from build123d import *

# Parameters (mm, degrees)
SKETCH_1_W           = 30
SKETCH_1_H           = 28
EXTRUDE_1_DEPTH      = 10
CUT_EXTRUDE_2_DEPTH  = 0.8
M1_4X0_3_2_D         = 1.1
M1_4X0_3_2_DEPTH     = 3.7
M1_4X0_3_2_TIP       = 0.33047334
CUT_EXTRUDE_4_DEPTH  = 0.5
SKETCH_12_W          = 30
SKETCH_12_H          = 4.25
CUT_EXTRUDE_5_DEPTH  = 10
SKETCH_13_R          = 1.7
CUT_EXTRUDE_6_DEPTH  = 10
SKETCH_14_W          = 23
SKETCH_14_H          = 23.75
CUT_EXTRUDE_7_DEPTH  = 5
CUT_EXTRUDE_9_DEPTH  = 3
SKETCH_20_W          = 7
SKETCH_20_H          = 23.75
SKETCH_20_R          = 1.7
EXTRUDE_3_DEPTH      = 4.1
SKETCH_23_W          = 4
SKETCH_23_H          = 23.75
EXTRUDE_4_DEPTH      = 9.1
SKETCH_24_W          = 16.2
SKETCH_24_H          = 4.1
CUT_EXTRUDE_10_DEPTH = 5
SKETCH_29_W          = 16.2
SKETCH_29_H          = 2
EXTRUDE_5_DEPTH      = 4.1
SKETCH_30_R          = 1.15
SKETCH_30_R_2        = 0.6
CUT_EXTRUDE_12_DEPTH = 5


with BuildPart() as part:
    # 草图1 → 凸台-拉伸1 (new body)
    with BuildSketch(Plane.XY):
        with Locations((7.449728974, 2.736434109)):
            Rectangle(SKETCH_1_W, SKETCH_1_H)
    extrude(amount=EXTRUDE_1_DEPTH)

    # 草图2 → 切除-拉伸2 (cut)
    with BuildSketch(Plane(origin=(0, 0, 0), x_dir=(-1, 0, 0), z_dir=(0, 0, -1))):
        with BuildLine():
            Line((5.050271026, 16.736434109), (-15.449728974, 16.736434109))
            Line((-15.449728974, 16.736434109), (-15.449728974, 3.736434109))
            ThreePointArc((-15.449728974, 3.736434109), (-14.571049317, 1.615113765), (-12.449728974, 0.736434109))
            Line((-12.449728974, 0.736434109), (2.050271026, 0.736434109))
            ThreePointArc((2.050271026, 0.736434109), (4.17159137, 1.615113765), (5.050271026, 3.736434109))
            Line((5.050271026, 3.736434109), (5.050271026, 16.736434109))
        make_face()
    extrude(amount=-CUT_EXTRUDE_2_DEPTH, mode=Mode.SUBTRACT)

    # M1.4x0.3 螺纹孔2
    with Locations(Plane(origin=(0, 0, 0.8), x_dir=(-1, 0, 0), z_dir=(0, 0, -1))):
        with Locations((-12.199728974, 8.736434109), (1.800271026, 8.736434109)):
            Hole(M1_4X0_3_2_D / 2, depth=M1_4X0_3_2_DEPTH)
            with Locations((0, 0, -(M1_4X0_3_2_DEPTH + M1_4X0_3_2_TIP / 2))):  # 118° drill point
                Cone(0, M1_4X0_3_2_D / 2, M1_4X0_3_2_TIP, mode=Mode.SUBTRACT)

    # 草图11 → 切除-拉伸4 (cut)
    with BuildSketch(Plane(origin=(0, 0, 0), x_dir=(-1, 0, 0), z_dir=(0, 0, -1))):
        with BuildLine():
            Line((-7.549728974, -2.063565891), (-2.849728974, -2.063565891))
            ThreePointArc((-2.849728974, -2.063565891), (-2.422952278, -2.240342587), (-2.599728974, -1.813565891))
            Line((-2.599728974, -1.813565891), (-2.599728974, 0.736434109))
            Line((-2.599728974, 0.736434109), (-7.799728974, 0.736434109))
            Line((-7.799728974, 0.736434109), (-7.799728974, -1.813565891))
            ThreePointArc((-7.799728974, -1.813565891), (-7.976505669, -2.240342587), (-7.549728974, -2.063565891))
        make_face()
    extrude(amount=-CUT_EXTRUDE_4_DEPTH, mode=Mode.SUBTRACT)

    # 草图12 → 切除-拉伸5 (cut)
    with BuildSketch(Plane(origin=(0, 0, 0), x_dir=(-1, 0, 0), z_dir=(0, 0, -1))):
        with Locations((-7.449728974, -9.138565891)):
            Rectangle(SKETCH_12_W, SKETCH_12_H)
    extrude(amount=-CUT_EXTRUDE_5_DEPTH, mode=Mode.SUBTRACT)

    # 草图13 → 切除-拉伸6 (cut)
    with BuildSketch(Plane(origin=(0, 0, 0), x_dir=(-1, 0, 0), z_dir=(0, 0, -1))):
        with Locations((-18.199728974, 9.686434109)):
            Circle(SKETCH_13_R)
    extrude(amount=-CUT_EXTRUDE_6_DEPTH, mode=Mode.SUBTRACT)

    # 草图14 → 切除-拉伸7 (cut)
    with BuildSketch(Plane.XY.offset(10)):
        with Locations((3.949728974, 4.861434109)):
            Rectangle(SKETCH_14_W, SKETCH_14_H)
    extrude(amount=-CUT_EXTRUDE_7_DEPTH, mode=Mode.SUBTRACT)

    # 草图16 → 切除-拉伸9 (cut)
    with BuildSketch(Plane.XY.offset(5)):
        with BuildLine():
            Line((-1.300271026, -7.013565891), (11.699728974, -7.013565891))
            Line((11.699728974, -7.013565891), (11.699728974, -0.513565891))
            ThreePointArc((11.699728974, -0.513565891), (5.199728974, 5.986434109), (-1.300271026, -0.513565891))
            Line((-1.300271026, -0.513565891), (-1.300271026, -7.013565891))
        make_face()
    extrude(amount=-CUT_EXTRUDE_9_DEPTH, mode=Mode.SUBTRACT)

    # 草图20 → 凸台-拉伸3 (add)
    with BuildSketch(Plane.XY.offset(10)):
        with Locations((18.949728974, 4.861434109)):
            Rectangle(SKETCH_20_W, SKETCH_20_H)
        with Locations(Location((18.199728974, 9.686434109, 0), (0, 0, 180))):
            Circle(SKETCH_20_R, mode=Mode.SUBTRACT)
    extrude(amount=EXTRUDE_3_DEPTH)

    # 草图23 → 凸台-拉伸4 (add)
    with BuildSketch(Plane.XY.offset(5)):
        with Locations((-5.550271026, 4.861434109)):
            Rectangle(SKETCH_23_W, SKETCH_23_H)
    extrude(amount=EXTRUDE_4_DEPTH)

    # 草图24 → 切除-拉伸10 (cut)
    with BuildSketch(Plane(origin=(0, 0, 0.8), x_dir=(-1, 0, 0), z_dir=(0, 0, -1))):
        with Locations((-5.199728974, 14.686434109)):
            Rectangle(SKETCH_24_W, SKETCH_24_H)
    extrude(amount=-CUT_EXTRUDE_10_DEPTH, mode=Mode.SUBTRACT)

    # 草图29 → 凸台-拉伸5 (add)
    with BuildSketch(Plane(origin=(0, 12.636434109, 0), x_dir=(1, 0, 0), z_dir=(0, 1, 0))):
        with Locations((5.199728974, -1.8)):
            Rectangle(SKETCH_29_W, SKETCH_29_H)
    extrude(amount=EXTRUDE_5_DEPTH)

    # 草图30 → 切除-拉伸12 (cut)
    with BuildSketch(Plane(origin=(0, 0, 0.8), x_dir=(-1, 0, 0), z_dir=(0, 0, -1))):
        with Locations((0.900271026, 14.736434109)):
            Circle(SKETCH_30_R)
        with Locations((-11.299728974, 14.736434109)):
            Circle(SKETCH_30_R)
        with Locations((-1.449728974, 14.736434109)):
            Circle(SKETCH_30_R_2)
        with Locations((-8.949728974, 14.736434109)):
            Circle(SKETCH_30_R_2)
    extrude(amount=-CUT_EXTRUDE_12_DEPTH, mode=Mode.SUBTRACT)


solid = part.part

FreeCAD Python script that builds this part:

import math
import FreeCAD as App
import Part
import Sketcher
from FreeCAD import Vector
Q = App.Units.Quantity


def add_polygon(sketch, points):
    """Adds a closed chain of lines whose ends are joined by coincident constraints."""
    first, n = sketch.GeometryCount, len(points)
    for a, b in zip(points, points[1:] + points[:1]):
        sketch.addGeometry(Part.LineSegment(App.Vector(*a, 0), App.Vector(*b, 0)), False)
    for i in range(n):
        sketch.addConstraint(Sketcher.Constraint("Coincident", first + i, 2, first + (i + 1) % n, 1))

doc = App.newDocument("Part")
body = doc.addObject("PartDesign::Body", "Body")

# Sketch on XY plane
sketch1 = body.newObject("Sketcher::SketchObject", "Sketch")
sketch1.AttachmentSupport = (doc.getObject("XY_Plane"), [""])
sketch1.MapMode = "FlatFace"
add_polygon(sketch1, [(-7.550271, 16.736434), (-7.550271, -11.263566), (22.449729, -11.263566), (22.449729, 16.736434)])  # lines 0-3
sketch1.addConstraint(Sketcher.Constraint("Vertical", 0))
sketch1.addConstraint(Sketcher.Constraint("Horizontal", 1))
sketch1.addConstraint(Sketcher.Constraint("Vertical", 2))
sketch1.addConstraint(Sketcher.Constraint("Horizontal", 3))
sketch1.addConstraint(Sketcher.Constraint("DistanceX", 1, 1, 1, 2, Q("30 mm")))
sketch1.addConstraint(Sketcher.Constraint("DistanceY", 0, 2, 0, 1, Q("28 mm")))
sketch1.addConstraint(Sketcher.Constraint("DistanceX", 0, 2, -1, 1, Q("7.550271 mm")))
sketch1.addConstraint(Sketcher.Constraint("DistanceY", 0, 2, -1, 1, Q("11.263566 mm")))
pad1 = body.newObject("PartDesign::Pad", "Pad")
pad1.Profile = sketch1
pad1.Length = 10

# Sketch on XY plane
sketch2 = body.newObject("Sketcher::SketchObject", "Sketch001")
sketch2.AttachmentSupport = (doc.getObject("XY_Plane"), [""])
sketch2.MapMode = "FlatFace"
sketch2.addGeometry(Part.LineSegment(Vector(-5.050271, 16.736434, 0), Vector(15.449729, 16.736434, 0)), False)
sketch2.addGeometry(Part.LineSegment(Vector(15.449729, 16.736434, 0), Vector(15.449729, 3.736434, 0)), False)
sketch2.addGeometry(Part.ArcOfCircle(Part.Circle(Vector(12.449729, 3.736434, 0), Vector(0, 0, 1), 3), math.radians(-90), math.radians(0)), False)
sketch2.addGeometry(Part.LineSegment(Vector(12.449729, 0.736434, 0), Vector(-2.050271, 0.736434, 0)), False)
sketch2.addGeometry(Part.ArcOfCircle(Part.Circle(Vector(-2.050271, 3.736434, 0), Vector(0, 0, 1), 3), math.radians(180), math.radians(270)), False)
sketch2.addGeometry(Part.LineSegment(Vector(-5.050271, 3.736434, 0), Vector(-5.050271, 16.736434, 0)), False)
sketch2.addConstraint(Sketcher.Constraint("Coincident", 0, 2, 1, 1))
sketch2.addConstraint(Sketcher.Constraint("Tangent", 1, 2, 2, 2))
sketch2.addConstraint(Sketcher.Constraint("Tangent", 2, 1, 3, 1))
sketch2.addConstraint(Sketcher.Constraint("Tangent", 3, 2, 4, 2))
sketch2.addConstraint(Sketcher.Constraint("Tangent", 4, 1, 5, 1))
sketch2.addConstraint(Sketcher.Constraint("Coincident", 5, 2, 0, 1))
sketch2.addConstraint(Sketcher.Constraint("Horizontal", 0))
sketch2.addConstraint(Sketcher.Constraint("Vertical", 1))
sketch2.addConstraint(Sketcher.Constraint("Horizontal", 3))
sketch2.addConstraint(Sketcher.Constraint("Vertical", 5))
sketch2.addConstraint(Sketcher.Constraint("Equal", 2, 4))
sketch2.addConstraint(Sketcher.Constraint("Radius", 2, Q("3 mm")))
sketch2.addConstraint(Sketcher.Constraint("DistanceY", 1, 2, 1, 1, Q("13 mm")))
sketch2.addConstraint(Sketcher.Constraint("DistanceX", 0, 1, 0, 2, Q("20.5 mm")))
sketch2.addConstraint(Sketcher.Constraint("DistanceX", -1, 1, 2, 3, Q("12.449729 mm")))
sketch2.addConstraint(Sketcher.Constraint("DistanceY", -1, 1, 2, 3, Q("3.736434 mm")))
pocket1 = body.newObject("PartDesign::Pocket", "Pocket")
pocket1.Profile = sketch2
pocket1.Length = 0.8
pocket1.Reversed = True

# Sketch on XY plane
sketch3 = body.newObject("Sketcher::SketchObject", "Sketch002")
sketch3.AttachmentSupport = (doc.getObject("XY_Plane"), [""])
sketch3.MapMode = "FlatFace"
sketch3.AttachmentOffset = App.Placement(Vector(0, 0, 0.8), App.Rotation())
sketch3.addGeometry(Part.Circle(Vector(12.199729, 8.736434, 0), Vector(0, 0, 1), 0.55), False)
sketch3.addGeometry(Part.Circle(Vector(-1.800271, 8.736434, 0), Vector(0, 0, 1), 0.55), False)
sketch3.addConstraint(Sketcher.Constraint("Equal", 0, 1))
sketch3.addConstraint(Sketcher.Constraint("Horizontal", 0, 3, 1, 3))
sketch3.addConstraint(Sketcher.Constraint("Diameter", 0, Q("1.1 mm")))
sketch3.addConstraint(Sketcher.Constraint("DistanceX", 1, 3, 0, 3, Q("14 mm")))
sketch3.addConstraint(Sketcher.Constraint("DistanceX", -1, 1, 0, 3, Q("12.199729 mm")))
sketch3.addConstraint(Sketcher.Constraint("DistanceY", -1, 1, 0, 3, Q("8.736434 mm")))
doc.recompute()
hole = body.newObject("PartDesign::Hole", "Hole")
hole.Profile = sketch3
hole.ThreadType = "None"
hole.Diameter = 1.1
hole.DepthType = "Dimension"
hole.Depth = 3.7
hole.DrillPoint = "Angled"
hole.DrillPointAngle = 118
hole.Reversed = True

# Sketch on XY plane
sketch4 = body.newObject("Sketcher::SketchObject", "Sketch003")
sketch4.AttachmentSupport = (doc.getObject("XY_Plane"), [""])
sketch4.MapMode = "FlatFace"
sketch4.addGeometry(Part.LineSegment(Vector(7.549729, -2.063566, 0), Vector(2.849729, -2.063566, 0)), False)
sketch4.addGeometry(Part.ArcOfCircle(Part.Circle(Vector(2.599729, -2.063566, 0), Vector(0, 0, 1), 0.25), math.radians(90), math.radians(360)), False)
sketch4.addGeometry(Part.LineSegment(Vector(2.599729, -1.813566, 0), Vector(2.599729, 0.736434, 0)), False)
sketch4.addGeometry(Part.LineSegment(Vector(2.599729, 0.736434, 0), Vector(7.799729, 0.736434, 0)), False)
sketch4.addGeometry(Part.LineSegment(Vector(7.799729, 0.736434, 0), Vector(7.799729, -1.813566, 0)), False)
sketch4.addGeometry(Part.ArcOfCircle(Part.Circle(Vector(7.799729, -2.063566, 0), Vector(0, 0, 1), 0.25), math.radians(180), math.radians(450)), False)
sketch4.addConstraint(Sketcher.Constraint("Coincident", 0, 2, 1, 2))
sketch4.addConstraint(Sketcher.Constraint("Coincident", 1, 1, 2, 1))
sketch4.addConstraint(Sketcher.Constraint("Coincident", 2, 2, 3, 1))
sketch4.addConstraint(Sketcher.Constraint("Coincident", 3, 2, 4, 1))
sketch4.addConstraint(Sketcher.Constraint("Coincident", 4, 2, 5, 2))
sketch4.addConstraint(Sketcher.Constraint("Coincident", 5, 1, 0, 1))
sketch4.addConstraint(Sketcher.Constraint("Horizontal", 0))
sketch4.addConstraint(Sketcher.Constraint("Vertical", 2))
sketch4.addConstraint(Sketcher.Constraint("Horizontal", 3))
sketch4.addConstraint(Sketcher.Constraint("Vertical", 4))
sketch4.addConstraint(Sketcher.Constraint("Equal", 1, 5))
sketch4.addConstraint(Sketcher.Constraint("Horizontal", 1, 3, 5, 3))
sketch4.addConstraint(Sketcher.Constraint("Horizontal", 5, 3, 0, 2))
sketch4.addConstraint(Sketcher.Constraint("Vertical", 5, 3, 3, 2))
sketch4.addConstraint(Sketcher.Constraint("Radius", 1, Q("0.25 mm")))
sketch4.addConstraint(Sketcher.Constraint("DistanceX", 0, 2, 0, 1, Q("4.7 mm")))
sketch4.addConstraint(Sketcher.Constraint("DistanceX", 3, 1, 3, 2, Q("5.2 mm")))
sketch4.addConstraint(Sketcher.Constraint("DistanceY", 2, 1, 2, 2, Q("2.55 mm")))
sketch4.addConstraint(Sketcher.Constraint("DistanceX", -1, 1, 1, 3, Q("2.599729 mm")))
sketch4.addConstraint(Sketcher.Constraint("DistanceY", 1, 3, -1, 1, Q("2.063566 mm")))
pocket2 = body.newObject("PartDesign::Pocket", "Pocket001")
pocket2.Profile = sketch4
pocket2.Length = 0.5
pocket2.Reversed = True

# Sketch on XY plane
sketch5 = body.newObject("Sketcher::SketchObject", "Sketch004")
sketch5.AttachmentSupport = (doc.getObject("XY_Plane"), [""])
sketch5.MapMode = "FlatFace"
add_polygon(sketch5, [(22.449729, -7.013566), (22.449729, -11.263566), (-7.550271, -11.263566), (-7.550271, -7.013566)])  # lines 0-3
sketch5.addConstraint(Sketcher.Constraint("Vertical", 0))
sketch5.addConstraint(Sketcher.Constraint("Horizontal", 1))
sketch5.addConstraint(Sketcher.Constraint("Vertical", 2))
sketch5.addConstraint(Sketcher.Constraint("Horizontal", 3))
sketch5.addConstraint(Sketcher.Constraint("DistanceX", 1, 2, 1, 1, Q("30 mm")))
sketch5.addConstraint(Sketcher.Constraint("DistanceY", 0, 2, 0, 1, Q("4.25 mm")))
sketch5.addConstraint(Sketcher.Constraint("DistanceX", -1, 1, 0, 2, Q("22.449729 mm")))
sketch5.addConstraint(Sketcher.Constraint("DistanceY", 0, 2, -1, 1, Q("11.263566 mm")))
pocket3 = body.newObject("PartDesign::Pocket", "Pocket002")
pocket3.Profile = sketch5
pocket3.Length = 10
pocket3.Reversed = True

# Sketch on XY plane
sketch6 = body.newObject("Sketcher::SketchObject", "Sketch005")
sketch6.AttachmentSupport = (doc.getObject("XY_Plane"), [""])
sketch6.MapMode = "FlatFace"
sketch6.addGeometry(Part.Circle(Vector(18.199729, 9.686434, 0), Vector(0, 0, 1), 1.7), False)
sketch6.addConstraint(Sketcher.Constraint("Diameter", 0, Q("3.4 mm")))
sketch6.addConstraint(Sketcher.Constraint("DistanceX", -1, 1, 0, 3, Q("18.199729 mm")))
sketch6.addConstraint(Sketcher.Constraint("DistanceY", -1, 1, 0, 3, Q("9.686434 mm")))
pocket4 = body.newObject("PartDesign::Pocket", "Pocket003")
pocket4.Profile = sketch6
pocket4.Length = 10
pocket4.Reversed = True

# Sketch on XY plane
sketch7 = body.newObject("Sketcher::SketchObject", "Sketch006")
sketch7.AttachmentSupport = (doc.getObject("XY_Plane"), [""])
sketch7.MapMode = "FlatFace"
sketch7.AttachmentOffset = App.Placement(Vector(0, 0, 10), App.Rotation())
add_polygon(sketch7, [(-7.550271, 16.736434), (-7.550271, -7.013566), (15.449729, -7.013566), (15.449729, 16.736434)])  # lines 0-3
sketch7.addConstraint(Sketcher.Constraint("Vertical", 0))
sketch7.addConstraint(Sketcher.Constraint("Horizontal", 1))
sketch7.addConstraint(Sketcher.Constraint("Vertical", 2))
sketch7.addConstraint(Sketcher.Constraint("Horizontal", 3))
sketch7.addConstraint(Sketcher.Constraint("DistanceX", 1, 1, 1, 2, Q("23 mm")))
sketch7.addConstraint(Sketcher.Constraint("DistanceY", 0, 2, 0, 1, Q("23.75 mm")))
sketch7.addConstraint(Sketcher.Constraint("DistanceX", 0, 2, -1, 1, Q("7.550271 mm")))
sketch7.addConstraint(Sketcher.Constraint("DistanceY", 0, 2, -1, 1, Q("7.013566 mm")))
pocket5 = body.newObject("PartDesign::Pocket", "Pocket004")
pocket5.Profile = sketch7
pocket5.Length = 5

# Sketch on XY plane
sketch8 = body.newObject("Sketcher::SketchObject", "Sketch007")
sketch8.AttachmentSupport = (doc.getObject("XY_Plane"), [""])
sketch8.MapMode = "FlatFace"
sketch8.AttachmentOffset = App.Placement(Vector(0, 0, 5), App.Rotation())
sketch8.addGeometry(Part.LineSegment(Vector(-1.300271, -7.013566, 0), Vector(11.699729, -7.013566, 0)), False)
sketch8.addGeometry(Part.LineSegment(Vector(11.699729, -7.013566, 0), Vector(11.699729, -0.513566, 0)), False)
sketch8.addGeometry(Part.ArcOfCircle(Part.Circle(Vector(5.199729, -0.513566, 0), Vector(0, 0, 1), 6.5), math.radians(0), math.radians(180)), False)
sketch8.addGeometry(Part.LineSegment(Vector(-1.300271, -0.513566, 0), Vector(-1.300271, -7.013566, 0)), False)
sketch8.addConstraint(Sketcher.Constraint("Coincident", 0, 2, 1, 1))
sketch8.addConstraint(Sketcher.Constraint("Tangent", 1, 2, 2, 1))
sketch8.addConstraint(Sketcher.Constraint("Tangent", 2, 2, 3, 1))
sketch8.addConstraint(Sketcher.Constraint("Coincident", 3, 2, 0, 1))
sketch8.addConstraint(Sketcher.Constraint("Horizontal", 0))
sketch8.addConstraint(Sketcher.Constraint("Vertical", 1))
sketch8.addConstraint(Sketcher.Constraint("Vertical", 3))
sketch8.addConstraint(Sketcher.Constraint("Radius", 2, Q("6.5 mm")))
sketch8.addConstraint(Sketcher.Constraint("DistanceY", 1, 1, 1, 2, Q("6.5 mm")))
sketch8.addConstraint(Sketcher.Constraint("DistanceX", -1, 1, 2, 3, Q("5.199729 mm")))
sketch8.addConstraint(Sketcher.Constraint("DistanceY", 2, 3, -1, 1, Q("0.513566 mm")))
pocket6 = body.newObject("PartDesign::Pocket", "Pocket005")
pocket6.Profile = sketch8
pocket6.Length = 3

# Sketch on XY plane
sketch9 = body.newObject("Sketcher::SketchObject", "Sketch008")
sketch9.AttachmentSupport = (doc.getObject("XY_Plane"), [""])
sketch9.MapMode = "FlatFace"
sketch9.AttachmentOffset = App.Placement(Vector(0, 0, 10), App.Rotation())
add_polygon(sketch9, [(15.449729, 16.736434), (15.449729, -7.013566), (22.449729, -7.013566), (22.449729, 16.736434)])  # lines 0-3
sketch9.addGeometry(Part.Circle(Vector(18.199729, 9.686434, 0), Vector(0, 0, 1), 1.7), False)  # 4
sketch9.addConstraint(Sketcher.Constraint("Vertical", 0))
sketch9.addConstraint(Sketcher.Constraint("Horizontal", 1))
sketch9.addConstraint(Sketcher.Constraint("Vertical", 2))
sketch9.addConstraint(Sketcher.Constraint("Horizontal", 3))
sketch9.addConstraint(Sketcher.Constraint("Diameter", 4, Q("3.4 mm")))
sketch9.addConstraint(Sketcher.Constraint("DistanceX", 1, 1, 1, 2, Q("7 mm")))
sketch9.addConstraint(Sketcher.Constraint("DistanceY", 0, 2, 0, 1, Q("23.75 mm")))
sketch9.addConstraint(Sketcher.Constraint("DistanceY", 0, 2, 4, 3, Q("16.7 mm")))
sketch9.addConstraint(Sketcher.Constraint("DistanceX", 0, 2, 4, 3, Q("2.75 mm")))
sketch9.addConstraint(Sketcher.Constraint("DistanceX", -1, 1, 4, 3, Q("18.199729 mm")))
sketch9.addConstraint(Sketcher.Constraint("DistanceY", -1, 1, 4, 3, Q("9.686434 mm")))
pad2 = body.newObject("PartDesign::Pad", "Pad001")
pad2.Profile = sketch9
pad2.Length = 4.1

# Sketch on XY plane
sketch10 = body.newObject("Sketcher::SketchObject", "Sketch009")
sketch10.AttachmentSupport = (doc.getObject("XY_Plane"), [""])
sketch10.MapMode = "FlatFace"
sketch10.AttachmentOffset = App.Placement(Vector(0, 0, 5), App.Rotation())
add_polygon(sketch10, [(-7.550271, 16.736434), (-7.550271, -7.013566), (-3.550271, -7.013566), (-3.550271, 16.736434)])  # lines 0-3
sketch10.addConstraint(Sketcher.Constraint("Vertical", 0))
sketch10.addConstraint(Sketcher.Constraint("Horizontal", 1))
sketch10.addConstraint(Sketcher.Constraint("Vertical", 2))
sketch10.addConstraint(Sketcher.Constraint("Horizontal", 3))
sketch10.addConstraint(Sketcher.Constraint("DistanceX", 1, 1, 1, 2, Q("4 mm")))
sketch10.addConstraint(Sketcher.Constraint("DistanceY", 0, 2, 0, 1, Q("23.75 mm")))
sketch10.addConstraint(Sketcher.Constraint("DistanceX", 0, 2, -1, 1, Q("7.550271 mm")))
sketch10.addConstraint(Sketcher.Constraint("DistanceY", 0, 2, -1, 1, Q("7.013566 mm")))
pad3 = body.newObject("PartDesign::Pad", "Pad002")
pad3.Profile = sketch10
pad3.Length = 9.1

# Sketch on XY plane
sketch11 = body.newObject("Sketcher::SketchObject", "Sketch010")
sketch11.AttachmentSupport = (doc.getObject("XY_Plane"), [""])
sketch11.MapMode = "FlatFace"
sketch11.AttachmentOffset = App.Placement(Vector(0, 0, 0.8), App.Rotation())
add_polygon(sketch11, [(13.299729, 16.736434), (13.299729, 12.636434), (-2.900271, 12.636434), (-2.900271, 16.736434)])  # lines 0-3
sketch11.addConstraint(Sketcher.Constraint("Vertical", 0))
sketch11.addConstraint(Sketcher.Constraint("Horizontal", 1))
sketch11.addConstraint(Sketcher.Constraint("Vertical", 2))
sketch11.addConstraint(Sketcher.Constraint("Horizontal", 3))
sketch11.addConstraint(Sketcher.Constraint("DistanceX", 1, 2, 1, 1, Q("16.2 mm")))
sketch11.addConstraint(Sketcher.Constraint("DistanceY", 0, 2, 0, 1, Q("4.1 mm")))
sketch11.addConstraint(Sketcher.Constraint("DistanceX", -1, 1, 0, 2, Q("13.299729 mm")))
sketch11.addConstraint(Sketcher.Constraint("DistanceY", -1, 1, 0, 2, Q("12.636434 mm")))
pocket7 = body.newObject("PartDesign::Pocket", "Pocket006")
pocket7.Profile = sketch11
pocket7.Length = 5
pocket7.Reversed = True

# Sketch on XZ plane
sketch12 = body.newObject("Sketcher::SketchObject", "Sketch011")
sketch12.AttachmentSupport = (doc.getObject("XZ_Plane"), [""])
sketch12.MapMode = "FlatFace"
sketch12.AttachmentOffset = App.Placement(Vector(0, 0, -12.636434), App.Rotation())
add_polygon(sketch12, [(-2.900271, 0.8), (-2.900271, 2.8), (13.299729, 2.8), (13.299729, 0.8)])  # lines 0-3
sketch12.addConstraint(Sketcher.Constraint("Vertical", 0))
sketch12.addConstraint(Sketcher.Constraint("Horizontal", 1))
sketch12.addConstraint(Sketcher.Constraint("Vertical", 2))
sketch12.addConstraint(Sketcher.Constraint("Horizontal", 3))
sketch12.addConstraint(Sketcher.Constraint("DistanceY", 0, 1, 0, 2, Q("2 mm")))
sketch12.addConstraint(Sketcher.Constraint("DistanceX", 1, 1, 1, 2, Q("16.2 mm")))
sketch12.addConstraint(Sketcher.Constraint("DistanceY", -1, 1, 0, 2, Q("2.8 mm")))
sketch12.addConstraint(Sketcher.Constraint("DistanceX", 0, 2, -1, 1, Q("2.900271 mm")))
pad4 = body.newObject("PartDesign::Pad", "Pad003")
pad4.Profile = sketch12
pad4.Length = 4.1
pad4.Reversed = True

# Sketch on XY plane
sketch13 = body.newObject("Sketcher::SketchObject", "Sketch012")
sketch13.AttachmentSupport = (doc.getObject("XY_Plane"), [""])
sketch13.MapMode = "FlatFace"
sketch13.AttachmentOffset = App.Placement(Vector(0, 0, 0.8), App.Rotation())
sketch13.addGeometry(Part.Circle(Vector(-0.900271, 14.736434, 0), Vector(0, 0, 1), 1.15), False)
sketch13.addGeometry(Part.Circle(Vector(11.299729, 14.736434, 0), Vector(0, 0, 1), 1.15), False)
sketch13.addGeometry(Part.Circle(Vector(1.449729, 14.736434, 0), Vector(0, 0, 1), 0.6), False)
sketch13.addGeometry(Part.Circle(Vector(8.949729, 14.736434, 0), Vector(0, 0, 1), 0.6), False)
sketch13.addConstraint(Sketcher.Constraint("Equal", 0, 1))
sketch13.addConstraint(Sketcher.Constraint("Equal", 2, 3))
sketch13.addConstraint(Sketcher.Constraint("Horizontal", 0, 3, 1, 3))
sketch13.addConstraint(Sketcher.Constraint("Horizontal", 1, 3, 2, 3))
sketch13.addConstraint(Sketcher.Constraint("Horizontal", 2, 3, 3, 3))
sketch13.addConstraint(Sketcher.Constraint("Diameter", 0, Q("2.3 mm")))
sketch13.addConstraint(Sketcher.Constraint("Diameter", 2, Q("1.2 mm")))
sketch13.addConstraint(Sketcher.Constraint("DistanceX", 0, 3, 1, 3, Q("12.2 mm")))
sketch13.addConstraint(Sketcher.Constraint("DistanceX", 2, 3, 3, 3, Q("7.5 mm")))
sketch13.addConstraint(Sketcher.Constraint("DistanceX", 0, 3, 2, 3, Q("2.35 mm")))
sketch13.addConstraint(Sketcher.Constraint("DistanceX", 0, 3, -1, 1, Q("0.900271 mm")))
sketch13.addConstraint(Sketcher.Constraint("DistanceY", -1, 1, 0, 3, Q("14.736434 mm")))
pocket8 = body.newObject("PartDesign::Pocket", "Pocket007")
pocket8.Profile = sketch13
pocket8.Length = 5
pocket8.Reversed = True

doc.recompute()
